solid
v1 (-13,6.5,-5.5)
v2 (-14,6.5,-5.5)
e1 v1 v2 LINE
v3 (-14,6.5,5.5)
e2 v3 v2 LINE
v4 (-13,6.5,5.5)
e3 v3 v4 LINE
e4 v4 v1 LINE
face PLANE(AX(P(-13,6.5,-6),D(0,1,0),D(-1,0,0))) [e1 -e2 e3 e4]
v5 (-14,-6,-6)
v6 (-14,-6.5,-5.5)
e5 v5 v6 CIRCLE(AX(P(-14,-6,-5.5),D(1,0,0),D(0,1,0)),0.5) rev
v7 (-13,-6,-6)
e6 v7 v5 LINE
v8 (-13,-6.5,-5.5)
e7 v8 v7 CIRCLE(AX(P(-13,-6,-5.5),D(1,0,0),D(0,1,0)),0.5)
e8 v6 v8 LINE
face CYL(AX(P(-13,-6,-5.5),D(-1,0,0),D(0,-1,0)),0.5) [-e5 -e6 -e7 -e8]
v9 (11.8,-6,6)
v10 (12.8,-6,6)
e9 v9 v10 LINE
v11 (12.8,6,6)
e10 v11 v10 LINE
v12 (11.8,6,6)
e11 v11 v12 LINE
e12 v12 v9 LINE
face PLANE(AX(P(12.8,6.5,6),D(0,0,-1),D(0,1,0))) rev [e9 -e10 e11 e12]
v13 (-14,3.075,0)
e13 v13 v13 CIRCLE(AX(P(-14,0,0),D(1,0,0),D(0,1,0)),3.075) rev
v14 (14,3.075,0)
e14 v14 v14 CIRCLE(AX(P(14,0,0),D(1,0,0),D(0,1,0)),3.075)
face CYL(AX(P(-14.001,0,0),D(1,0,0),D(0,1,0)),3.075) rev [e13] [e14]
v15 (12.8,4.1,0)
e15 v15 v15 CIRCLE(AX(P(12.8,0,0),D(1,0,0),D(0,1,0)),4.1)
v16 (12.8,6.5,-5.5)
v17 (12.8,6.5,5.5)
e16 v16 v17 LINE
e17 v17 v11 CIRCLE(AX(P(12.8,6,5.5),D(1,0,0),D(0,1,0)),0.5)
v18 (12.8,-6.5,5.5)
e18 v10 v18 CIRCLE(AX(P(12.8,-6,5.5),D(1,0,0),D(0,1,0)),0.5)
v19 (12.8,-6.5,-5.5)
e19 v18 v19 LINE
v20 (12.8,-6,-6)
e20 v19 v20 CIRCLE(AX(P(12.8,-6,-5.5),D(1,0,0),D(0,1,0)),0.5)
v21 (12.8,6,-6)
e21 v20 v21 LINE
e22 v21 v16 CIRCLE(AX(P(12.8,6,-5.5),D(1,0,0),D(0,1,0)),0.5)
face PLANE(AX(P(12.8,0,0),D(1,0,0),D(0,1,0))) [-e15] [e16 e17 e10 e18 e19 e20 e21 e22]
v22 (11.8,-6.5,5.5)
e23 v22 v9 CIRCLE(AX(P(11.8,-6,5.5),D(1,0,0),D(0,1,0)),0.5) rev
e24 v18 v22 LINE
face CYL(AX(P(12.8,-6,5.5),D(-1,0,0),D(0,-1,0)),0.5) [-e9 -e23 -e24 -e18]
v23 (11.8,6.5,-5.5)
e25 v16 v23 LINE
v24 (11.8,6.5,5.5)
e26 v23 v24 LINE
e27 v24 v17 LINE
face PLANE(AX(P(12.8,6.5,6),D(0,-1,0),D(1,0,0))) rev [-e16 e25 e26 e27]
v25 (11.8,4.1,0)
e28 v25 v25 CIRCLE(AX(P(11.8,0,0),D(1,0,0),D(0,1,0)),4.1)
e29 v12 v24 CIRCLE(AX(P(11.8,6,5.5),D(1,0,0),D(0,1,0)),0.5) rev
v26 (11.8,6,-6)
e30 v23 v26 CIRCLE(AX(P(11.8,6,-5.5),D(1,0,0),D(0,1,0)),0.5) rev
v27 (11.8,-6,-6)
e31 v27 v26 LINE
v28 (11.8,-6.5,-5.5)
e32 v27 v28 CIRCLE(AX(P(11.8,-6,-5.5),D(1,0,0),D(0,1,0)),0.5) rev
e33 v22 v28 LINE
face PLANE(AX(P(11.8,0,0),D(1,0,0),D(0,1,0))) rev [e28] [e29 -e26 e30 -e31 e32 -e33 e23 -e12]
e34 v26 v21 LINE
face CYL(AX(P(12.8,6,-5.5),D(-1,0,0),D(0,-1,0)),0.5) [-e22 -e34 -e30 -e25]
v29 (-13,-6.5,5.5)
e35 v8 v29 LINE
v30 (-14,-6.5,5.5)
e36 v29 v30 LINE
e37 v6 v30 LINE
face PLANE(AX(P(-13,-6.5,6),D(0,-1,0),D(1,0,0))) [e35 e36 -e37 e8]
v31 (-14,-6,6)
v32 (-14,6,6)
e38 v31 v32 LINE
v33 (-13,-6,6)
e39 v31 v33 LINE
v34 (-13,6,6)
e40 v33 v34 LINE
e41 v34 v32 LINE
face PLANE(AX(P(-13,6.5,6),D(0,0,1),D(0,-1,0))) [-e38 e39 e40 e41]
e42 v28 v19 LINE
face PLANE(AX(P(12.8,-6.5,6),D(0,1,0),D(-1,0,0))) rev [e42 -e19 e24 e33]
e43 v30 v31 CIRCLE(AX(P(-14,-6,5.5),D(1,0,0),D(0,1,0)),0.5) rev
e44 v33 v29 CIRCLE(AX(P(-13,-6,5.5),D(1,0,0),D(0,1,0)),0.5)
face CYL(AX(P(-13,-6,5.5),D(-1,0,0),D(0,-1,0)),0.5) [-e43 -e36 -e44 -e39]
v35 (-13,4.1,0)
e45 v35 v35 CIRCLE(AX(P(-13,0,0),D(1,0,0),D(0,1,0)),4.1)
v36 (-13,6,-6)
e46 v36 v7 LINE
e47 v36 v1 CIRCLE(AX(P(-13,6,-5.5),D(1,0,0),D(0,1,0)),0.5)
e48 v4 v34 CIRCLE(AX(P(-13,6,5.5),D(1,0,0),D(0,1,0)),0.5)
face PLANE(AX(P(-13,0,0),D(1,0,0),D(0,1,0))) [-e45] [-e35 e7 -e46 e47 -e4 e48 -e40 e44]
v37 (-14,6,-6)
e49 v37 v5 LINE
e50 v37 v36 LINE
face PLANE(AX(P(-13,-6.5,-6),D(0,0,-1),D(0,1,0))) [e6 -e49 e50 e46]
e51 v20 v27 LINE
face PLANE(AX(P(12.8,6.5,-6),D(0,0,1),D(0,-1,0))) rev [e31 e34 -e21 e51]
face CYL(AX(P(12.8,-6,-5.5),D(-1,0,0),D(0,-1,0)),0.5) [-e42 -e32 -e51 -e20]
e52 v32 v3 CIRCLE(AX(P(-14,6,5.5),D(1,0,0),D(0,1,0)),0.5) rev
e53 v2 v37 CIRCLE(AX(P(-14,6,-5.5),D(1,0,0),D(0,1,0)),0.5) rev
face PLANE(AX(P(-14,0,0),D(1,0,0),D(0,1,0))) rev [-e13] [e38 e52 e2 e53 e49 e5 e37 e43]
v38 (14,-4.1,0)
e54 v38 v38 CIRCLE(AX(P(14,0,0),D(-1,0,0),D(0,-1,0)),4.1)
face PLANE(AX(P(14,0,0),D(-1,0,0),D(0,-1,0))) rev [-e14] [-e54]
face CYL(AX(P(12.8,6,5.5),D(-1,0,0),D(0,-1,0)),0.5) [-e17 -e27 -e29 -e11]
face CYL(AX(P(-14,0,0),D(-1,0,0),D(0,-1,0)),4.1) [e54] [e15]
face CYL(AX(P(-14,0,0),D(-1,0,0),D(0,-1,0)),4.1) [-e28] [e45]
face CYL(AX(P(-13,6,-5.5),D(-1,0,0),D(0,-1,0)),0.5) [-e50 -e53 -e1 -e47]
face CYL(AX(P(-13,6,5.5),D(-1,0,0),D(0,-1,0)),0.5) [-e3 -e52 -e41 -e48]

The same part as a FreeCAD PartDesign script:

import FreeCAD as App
import Part
import Sketcher


def edges_at(feature, points):
    """Names of the edges that pass closest to the given points."""
    edges = feature.Shape.Edges
    near = lambda p: min(range(len(edges)), key=lambda i: edges[i].distToShape(Part.Vertex(*p))[0])
    return sorted({f"Edge{near(p) + 1}" for p in points})


def add_polygon(sketch, points):
    """Adds a closed chain of lines whose ends are joined by coincident constraints."""
    first, n = sketch.GeometryCount, len(points)
    for a, b in zip(points, points[1:] + points[:1]):
        sketch.addGeometry(Part.LineSegment(App.Vector(*a, 0), App.Vector(*b, 0)), False)
    for i in range(n):
        sketch.addConstraint(Sketcher.Constraint("Coincident", first + i, 2, first + (i + 1) % n, 1))

doc = App.newDocument("Part")
body = doc.addObject("PartDesign::Body", "Body")

# Sketch on XY plane
sketch1 = body.newObject("Sketcher::SketchObject", "Sketch")
sketch1.AttachmentSupport = (doc.getObject("XY_Plane"), [""])
sketch1.MapMode = "FlatFace"
add_polygon(sketch1, [(-14, 4.1), (-14, 0), (14, 0), (14, 4.1)])  # lines 0-3
sketch1.addConstraint([
    Sketcher.Constraint("Vertical", 0),
    Sketcher.Constraint("Horizontal", 1),
    Sketcher.Constraint("Vertical", 2),
    Sketcher.Constraint("Horizontal", 3),
    Sketcher.Constraint("Symmetric", 0, 2, 1, 2, -1, 1),
    Sketcher.Constraint("DistanceX", 1, 1, 1, 2, 28.0),
    Sketcher.Constraint("DistanceY", 0, 2, 0, 1, 4.1),
])
revolution = body.newObject("PartDesign::Revolution", "Revolution")
revolution.Profile = sketch1
revolution.ReferenceAxis = (sketch1, ["H_Axis"])
revolution.Angle = 360

# Sketch on YZ plane
sketch2 = body.newObject("Sketcher::SketchObject", "Sketch001")
sketch2.AttachmentSupport = (doc.getObject("YZ_Plane"), [""])
sketch2.MapMode = "FlatFace"
sketch2.AttachmentOffset = App.Placement(App.Vector(0, 0, 11.8), App.Rotation())
add_polygon(sketch2, [(6, 6), (-6, 6), (-6, -6), (6, -6)])  # lines 0-3
sketch2.addConstraint([
    Sketcher.Constraint("Horizontal", 0),
    Sketcher.Constraint("Vertical", 1),
    Sketcher.Constraint("Horizontal", 2),
    Sketcher.Constraint("Vertical", 3),
    Sketcher.Constraint("Symmetric", 0, 2, 2, 2, -1, 1),
    Sketcher.Constraint("DistanceX", 0, 2, 0, 1, 13.0),
    Sketcher.Constraint("DistanceY", 1, 2, 1, 1, 12.0),
])
pad1 = body.newObject("PartDesign::Pad", "Pad")
pad1.Profile = sketch2
pad1.Length = 1

# Sketch on YZ plane
sketch3 = body.newObject("Sketcher::SketchObject", "Sketch002")
sketch3.AttachmentSupport = (doc.getObject("YZ_Plane"), [""])
sketch3.MapMode = "FlatFace"
sketch3.AttachmentOffset = App.Placement(App.Vector(0, 0, -14), App.Rotation())
add_polygon(sketch3, [(6, -6), (-6, -6), (-6, 6), (6, 6)])  # lines 0-3
sketch3.addConstraint([
    Sketcher.Constraint("Horizontal", 0),
    Sketcher.Constraint("Vertical", 1),
    Sketcher.Constraint("Horizontal", 2),
    Sketcher.Constraint("Vertical", 3),
    Sketcher.Constraint("Symmetric", 0, 2, 2, 2, -1, 1),
    Sketcher.Constraint("DistanceX", 0, 2, 0, 1, 13.0),
    Sketcher.Constraint("DistanceY", 1, 1, 1, 2, 12.0),
])
pad2 = body.newObject("PartDesign::Pad", "Pad001")
pad2.Profile = sketch3
pad2.Length = 1
doc.recompute()

fillet = body.newObject("PartDesign::Fillet", "Fillet")
fillet.Base = (pad2, edges_at(pad2, [
    (12.3, 6.5, 6),
    (12.3, -6.5, 6),
    (12.3, -6.5, -6),
    (12.3, 6.5, -6),
    (-13.5, -6.5, -6),
    (-13.5, 6.5, -6),
    (-13.5, 6.5, 6),
    (-13.5, -6.5, 6),
]))
fillet.Radius = 0.5

# Sketch on YZ plane
sketch4 = body.newObject("Sketcher::SketchObject", "Sketch003")
sketch4.AttachmentSupport = (doc.getObject("YZ_Plane"), [""])
sketch4.MapMode = "FlatFace"
sketch4.AttachmentOffset = App.Placement(App.Vector(0, 0, 14), App.Rotation())
sketch4.addGeometry(Part.Circle(App.Vector(0, 0, 0), App.Vector(0, 0, 1), 3.1), False)
sketch4.addConstraint([
    Sketcher.Constraint("Coincident", 0, 3, -1, 1),
    Sketcher.Constraint("Diameter", 0, 6.15),
])
pocket1 = body.newObject("PartDesign::Pocket", "Pocket")
pocket1.Profile = sketch4
pocket1.Type = "UpToFirst"

doc.recompute()
